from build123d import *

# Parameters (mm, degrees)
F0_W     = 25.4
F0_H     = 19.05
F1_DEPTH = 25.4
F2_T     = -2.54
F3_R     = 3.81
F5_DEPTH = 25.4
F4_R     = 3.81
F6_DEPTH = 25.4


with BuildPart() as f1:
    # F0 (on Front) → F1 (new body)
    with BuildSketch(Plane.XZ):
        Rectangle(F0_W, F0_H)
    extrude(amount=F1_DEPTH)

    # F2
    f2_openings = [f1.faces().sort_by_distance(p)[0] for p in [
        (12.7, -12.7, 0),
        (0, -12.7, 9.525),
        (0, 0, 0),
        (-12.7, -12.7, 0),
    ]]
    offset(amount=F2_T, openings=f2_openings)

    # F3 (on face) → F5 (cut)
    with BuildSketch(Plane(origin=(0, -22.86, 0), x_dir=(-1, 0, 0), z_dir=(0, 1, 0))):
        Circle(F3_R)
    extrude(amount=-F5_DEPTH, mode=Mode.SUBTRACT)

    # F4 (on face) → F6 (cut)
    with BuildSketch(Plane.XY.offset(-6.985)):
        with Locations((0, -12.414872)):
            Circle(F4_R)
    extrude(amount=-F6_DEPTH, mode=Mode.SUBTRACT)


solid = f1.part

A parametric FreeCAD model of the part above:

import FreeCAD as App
import Part
import Sketcher

V = App.Vector
Q = App.Units.Quantity


def faces_at(feature, points):
    """Names of the faces that lie closest to the given points."""
    faces = feature.Shape.Faces
    near = lambda p: min(range(len(faces)), key=lambda i: faces[i].distToShape(Part.Vertex(*p))[0])
    return sorted({f"Face{near(p) + 1}" for p in points})


def add_polygon(sketch, points):
    """Adds a closed chain of lines whose ends are joined by coincident constraints."""
    first, n = sketch.GeometryCount, len(points)
    for a, b in zip(points, points[1:] + points[:1]):
        sketch.addGeometry(Part.LineSegment(App.Vector(*a, 0), App.Vector(*b, 0)), False)
    for i in range(n):
        sketch.addConstraint(Sketcher.Constraint("Coincident", first + i, 2, first + (i + 1) % n, 1))

doc = App.newDocument("Part")
body = doc.addObject("PartDesign::Body", "Body")

sketch1 = doc.addObject("Sketcher::SketchObject", "Sketch")
body.addObject(sketch1)
sketch1.AttachmentSupport = (doc.XZ_Plane, [""])
sketch1.MapMode = "FlatFace"
add_polygon(sketch1, [(-13, 10), (-13, -10), (13, -10), (13, 10)])
sketch1.addConstraint([
    Sketcher.Constraint("Vertical", 0),
    Sketcher.Constraint("Horizontal", 1),
    Sketcher.Constraint("Vertical", 2),
    Sketcher.Constraint("Horizontal", 3),
    Sketcher.Constraint("Symmetric", 0, 2, 2, 2, -1, 1),
    Sketcher.Constraint("DistanceX", 1, 1, 1, 2, Q("1 in")),
    Sketcher.Constraint("DistanceY", 0, 2, 0, 1, Q("0.75 in")),
])
pad1 = doc.addObject("PartDesign::Pad", "Pad")
body.addObject(pad1)
pad1.Profile = sketch1
pad1.Length = Q("1 in")
doc.recompute()

thickness = doc.addObject("PartDesign::Thickness", "Thickness")
body.addObject(thickness)
thickness.Base = (pad1, faces_at(pad1, [
    (12.7, -12.7, 0),
    (0, -12.7, 9.525),
    (0, 0, 0),
    (-12.7, -12.7, 0),
]))
thickness.Value = Q("0.1 in")
thickness.Reversed = True
thickness.Join = "Arc"

sketch2 = doc.addObject("Sketcher::SketchObject", "Sketch001")
body.addObject(sketch2)
sketch2.AttachmentSupport = (doc.XZ_Plane, [""])
sketch2.MapMode = "FlatFace"
sketch2.AttachmentOffset = App.Placement(V(0, 0, 0.9 * 25.4), App.Rotation())
sketch2.addGeometry(Part.Circle(V(0, 0, 0), V(0, 0, 1), 3.8), False)
sketch2.addConstraint([
    Sketcher.Constraint("Coincident", 0, 3, -1, 1),
    Sketcher.Constraint("Diameter", 0, Q("0.3 in")),
])
pocket1 = doc.addObject("PartDesign::Pocket", "Pocket")
body.addObject(pocket1)
pocket1.Profile = sketch2
pocket1.Length = Q("1 in")
pocket1.Reversed = True

sketch3 = doc.addObject("Sketcher::SketchObject", "Sketch002")
body.addObject(sketch3)
sketch3.AttachmentSupport = (doc.XY_Plane, [""])
sketch3.MapMode = "FlatFace"
sketch3.AttachmentOffset = App.Placement(V(0, 0, -0.275 * 25.4), App.Rotation())
sketch3.addGeometry(Part.Circle(V(0, -12.4, 0), V(0, 0, 1), 3.8), False)
sketch3.addConstraint([
    Sketcher.Constraint("PointOnObject", 0, 3, -2),
    Sketcher.Constraint("Diameter", 0, Q("0.3 in")),
    Sketcher.Constraint("DistanceY", 0, 3, -1, 1, Q("12.414872 mm")),
])
pocket2 = doc.addObject("PartDesign::Pocket", "Pocket001")
body.addObject(pocket2)
pocket2.Profile = sketch3
pocket2.Length = Q("1 in")

doc.recompute()
